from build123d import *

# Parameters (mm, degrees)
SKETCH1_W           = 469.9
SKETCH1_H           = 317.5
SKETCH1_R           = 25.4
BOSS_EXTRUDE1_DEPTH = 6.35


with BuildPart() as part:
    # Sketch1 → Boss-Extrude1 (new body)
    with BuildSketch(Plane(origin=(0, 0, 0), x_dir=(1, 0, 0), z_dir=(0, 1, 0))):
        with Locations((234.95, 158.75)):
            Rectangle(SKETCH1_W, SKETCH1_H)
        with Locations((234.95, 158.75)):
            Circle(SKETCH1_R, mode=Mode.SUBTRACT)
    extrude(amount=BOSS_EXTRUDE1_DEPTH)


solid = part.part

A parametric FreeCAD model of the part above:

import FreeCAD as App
import Part
import Sketcher
from FreeCAD import Vector
Q = App.Units.Quantity

doc = App.newDocument("Part")
body = doc.addObject("PartDesign::Body", "Body")

# Sketch on XZ plane
sketch1 = body.newObject("Sketcher::SketchObject", "Sketch")
sketch1.AttachmentSupport = (doc.getObject("XZ_Plane"), [""])
sketch1.MapMode = "FlatFace"
sketch1.addGeometry([
    Part.LineSegment(Vector(0, -317.5, 0), Vector(0, 0, 0)),  # 0
    Part.LineSegment(Vector(0, 0, 0), Vector(469.9, 0, 0)),  # 1
    Part.LineSegment(Vector(469.9, 0, 0), Vector(469.9, -317.5, 0)),  # 2
    Part.LineSegment(Vector(469.9, -317.5, 0), Vector(0, -317.5, 0)),  # 3
    Part.Circle(Vector(234.95, -158.75, 0), Vector(0, 0, 1), 25.4),  # 4
], False)
sketch1.addConstraint([
    Sketcher.Constraint("Coincident", 0, 2, 1, 1),
    Sketcher.Constraint("Coincident", 1, 2, 2, 1),
    Sketcher.Constraint("Coincident", 2, 2, 3, 1),
    Sketcher.Constraint("Coincident", 3, 2, 0, 1),
    Sketcher.Constraint("Vertical", 0),
    Sketcher.Constraint("Horizontal", 1),
    Sketcher.Constraint("Vertical", 2),
    Sketcher.Constraint("Horizontal", 3),
    Sketcher.Constraint("Coincident", 0, 2, -1, 1),
    Sketcher.Constraint("Diameter", 4, Q("2 in")),
    Sketcher.Constraint("DistanceX", 1, 1, 1, 2, Q("18.5 in")),
    Sketcher.Constraint("DistanceY", 0, 1, 0, 2, Q("12.5 in")),
    Sketcher.Constraint("DistanceX", -1, 1, 4, 3, Q("9.25 in")),
    Sketcher.Constraint("DistanceY", 4, 3, -1, 1, Q("6.25 in")),
])
pad1 = body.newObject("PartDesign::Pad", "Pad")
pad1.Profile = sketch1
pad1.Length = Q("0.25 in")
pad1.Reversed = True

doc.recompute()
